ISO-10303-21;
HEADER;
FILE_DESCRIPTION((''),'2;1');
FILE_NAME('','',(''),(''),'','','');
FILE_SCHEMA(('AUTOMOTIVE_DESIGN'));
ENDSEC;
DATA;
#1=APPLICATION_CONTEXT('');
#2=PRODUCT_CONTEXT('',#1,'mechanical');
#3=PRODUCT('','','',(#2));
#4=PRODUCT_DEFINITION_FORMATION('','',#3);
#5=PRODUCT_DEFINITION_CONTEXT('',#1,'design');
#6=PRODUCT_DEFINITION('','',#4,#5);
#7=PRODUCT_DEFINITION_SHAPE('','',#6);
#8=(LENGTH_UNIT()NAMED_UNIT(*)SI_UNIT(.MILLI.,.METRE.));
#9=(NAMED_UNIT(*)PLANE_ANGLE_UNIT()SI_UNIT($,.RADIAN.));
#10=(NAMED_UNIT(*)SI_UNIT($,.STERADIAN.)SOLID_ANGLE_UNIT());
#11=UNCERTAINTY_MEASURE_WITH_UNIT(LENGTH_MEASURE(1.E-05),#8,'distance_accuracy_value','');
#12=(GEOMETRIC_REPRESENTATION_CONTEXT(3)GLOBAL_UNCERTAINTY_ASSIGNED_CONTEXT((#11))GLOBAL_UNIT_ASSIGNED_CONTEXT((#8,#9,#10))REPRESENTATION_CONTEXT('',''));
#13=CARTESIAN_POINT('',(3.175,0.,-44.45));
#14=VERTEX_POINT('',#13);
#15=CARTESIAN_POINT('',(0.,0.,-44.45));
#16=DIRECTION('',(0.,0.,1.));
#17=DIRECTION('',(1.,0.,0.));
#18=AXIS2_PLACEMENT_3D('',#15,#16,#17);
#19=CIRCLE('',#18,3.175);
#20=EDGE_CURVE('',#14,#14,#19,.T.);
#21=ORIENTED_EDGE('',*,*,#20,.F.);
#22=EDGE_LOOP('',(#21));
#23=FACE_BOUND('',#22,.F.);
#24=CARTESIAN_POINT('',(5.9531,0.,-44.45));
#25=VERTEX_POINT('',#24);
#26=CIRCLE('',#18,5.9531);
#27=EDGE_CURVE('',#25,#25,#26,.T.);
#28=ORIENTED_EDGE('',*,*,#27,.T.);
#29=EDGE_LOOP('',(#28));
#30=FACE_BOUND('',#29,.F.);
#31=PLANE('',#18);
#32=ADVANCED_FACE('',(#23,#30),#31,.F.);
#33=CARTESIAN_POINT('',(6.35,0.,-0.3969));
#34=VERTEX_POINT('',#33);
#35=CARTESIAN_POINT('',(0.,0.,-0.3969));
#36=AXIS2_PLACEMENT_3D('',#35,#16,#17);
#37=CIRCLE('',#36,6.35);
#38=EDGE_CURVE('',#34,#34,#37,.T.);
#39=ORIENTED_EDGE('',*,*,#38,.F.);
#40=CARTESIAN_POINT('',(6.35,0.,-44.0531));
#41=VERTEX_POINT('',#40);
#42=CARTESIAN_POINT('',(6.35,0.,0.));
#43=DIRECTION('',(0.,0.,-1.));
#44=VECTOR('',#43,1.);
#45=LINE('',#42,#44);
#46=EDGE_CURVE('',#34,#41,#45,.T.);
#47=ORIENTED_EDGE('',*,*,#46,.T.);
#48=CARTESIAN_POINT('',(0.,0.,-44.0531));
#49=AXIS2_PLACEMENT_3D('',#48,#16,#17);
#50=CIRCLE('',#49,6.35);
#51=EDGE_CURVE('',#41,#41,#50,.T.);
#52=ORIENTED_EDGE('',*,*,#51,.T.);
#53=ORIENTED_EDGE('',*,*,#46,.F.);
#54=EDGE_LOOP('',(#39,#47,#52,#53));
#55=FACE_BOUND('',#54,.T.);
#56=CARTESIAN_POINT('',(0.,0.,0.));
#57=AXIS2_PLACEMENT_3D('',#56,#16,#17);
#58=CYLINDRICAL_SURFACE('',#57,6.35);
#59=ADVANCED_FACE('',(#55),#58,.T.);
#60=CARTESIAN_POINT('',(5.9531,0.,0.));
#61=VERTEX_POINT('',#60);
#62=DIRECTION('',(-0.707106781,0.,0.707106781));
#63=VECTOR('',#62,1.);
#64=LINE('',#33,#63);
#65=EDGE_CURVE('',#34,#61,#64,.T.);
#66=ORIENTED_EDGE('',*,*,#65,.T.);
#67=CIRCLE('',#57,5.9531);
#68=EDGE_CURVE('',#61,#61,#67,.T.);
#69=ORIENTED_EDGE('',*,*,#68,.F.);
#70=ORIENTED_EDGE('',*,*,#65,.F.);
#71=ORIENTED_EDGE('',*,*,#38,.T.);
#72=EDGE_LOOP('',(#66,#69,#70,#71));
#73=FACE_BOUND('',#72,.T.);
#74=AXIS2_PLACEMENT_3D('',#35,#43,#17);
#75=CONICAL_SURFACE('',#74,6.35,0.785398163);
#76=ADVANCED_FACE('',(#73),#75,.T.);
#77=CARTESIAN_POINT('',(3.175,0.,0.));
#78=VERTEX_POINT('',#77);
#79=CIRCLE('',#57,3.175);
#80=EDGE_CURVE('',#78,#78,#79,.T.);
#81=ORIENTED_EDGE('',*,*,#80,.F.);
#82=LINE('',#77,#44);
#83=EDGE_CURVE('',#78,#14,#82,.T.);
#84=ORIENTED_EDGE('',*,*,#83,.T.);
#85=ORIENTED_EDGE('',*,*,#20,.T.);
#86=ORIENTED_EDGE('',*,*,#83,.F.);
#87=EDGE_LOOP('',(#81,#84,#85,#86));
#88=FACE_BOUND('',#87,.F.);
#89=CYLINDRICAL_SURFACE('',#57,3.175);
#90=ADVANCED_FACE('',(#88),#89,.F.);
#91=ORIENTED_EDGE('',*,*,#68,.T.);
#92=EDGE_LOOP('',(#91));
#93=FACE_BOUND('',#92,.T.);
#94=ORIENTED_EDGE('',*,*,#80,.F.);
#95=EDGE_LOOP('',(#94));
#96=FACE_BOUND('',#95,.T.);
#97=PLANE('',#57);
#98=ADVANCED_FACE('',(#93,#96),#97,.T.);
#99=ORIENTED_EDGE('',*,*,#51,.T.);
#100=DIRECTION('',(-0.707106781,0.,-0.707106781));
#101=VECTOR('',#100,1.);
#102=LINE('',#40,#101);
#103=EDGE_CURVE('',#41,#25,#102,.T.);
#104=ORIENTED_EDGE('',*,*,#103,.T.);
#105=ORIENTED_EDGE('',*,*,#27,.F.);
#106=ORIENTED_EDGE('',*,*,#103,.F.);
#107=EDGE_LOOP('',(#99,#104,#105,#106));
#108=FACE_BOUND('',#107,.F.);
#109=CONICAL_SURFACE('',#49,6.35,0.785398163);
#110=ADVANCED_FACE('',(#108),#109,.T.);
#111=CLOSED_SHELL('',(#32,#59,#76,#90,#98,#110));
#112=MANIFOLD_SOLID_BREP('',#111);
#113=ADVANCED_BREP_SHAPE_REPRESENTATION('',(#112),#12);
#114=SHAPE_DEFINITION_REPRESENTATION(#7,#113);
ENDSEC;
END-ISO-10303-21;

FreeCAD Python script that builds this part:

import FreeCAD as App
import Part
import Sketcher

V = App.Vector
Q = App.Units.Quantity


def edges_at(feature, points):
    """Names of the edges that pass closest to the given points."""
    edges = feature.Shape.Edges
    near = lambda p: min(range(len(edges)), key=lambda i: edges[i].distToShape(Part.Vertex(*p))[0])
    return sorted({f"Edge{near(p) + 1}" for p in points})

doc = App.newDocument("Part")
params = doc.addObject("Spreadsheet::Sheet", "Params")
for row, (alias, value) in enumerate([
    ("sketch1_diameter", "0.5 in"),
    ("sketch1_diameter2", "0.25 in"),
    ("pad1_length", "1.75 in"),
    ("chamfer_size", "0.015626 in"),
], start=1):
    params.set(f"A{row}", alias)
    params.set(f"B{row}", "=" + value)
    params.setAlias(f"B{row}", alias)

body = doc.addObject("PartDesign::Body", "Body")

# Sketch on XY plane
sketch1 = body.newObject("Sketcher::SketchObject", "Sketch")
sketch1.AttachmentSupport = (doc.getObject("XY_Plane"), [""])
sketch1.MapMode = "FlatFace"
sketch1.addGeometry([
    Part.Circle(V(0, 0, 0), V(0, 0, 1), 6.35),
    Part.Circle(V(0, 0, 0), V(0, 0, 1), 3.175),
], False)
sketch1.addConstraint([
    Sketcher.Constraint("Coincident", 0, 3, -1, 1),
    Sketcher.Constraint("Coincident", 1, 3, -1, 1),
    Sketcher.Constraint("Diameter", 0, Q("0.5 in")),
    Sketcher.Constraint("Diameter", 1, Q("0.25 in")),
])
sketch1.setExpression("Constraints[2]", "Params.sketch1_diameter")
sketch1.setExpression("Constraints[3]", "Params.sketch1_diameter2")
pad1 = body.newObject("PartDesign::Pad", "Pad")
pad1.Profile = sketch1
pad1.setExpression("Length", "Params.pad1_length")
pad1.Reversed = True
doc.recompute()

chamfer = body.newObject("PartDesign::Chamfer", "Chamfer")
chamfer.Base = (pad1, edges_at(pad1, [(-6.35, 0, 0), (-6.35, 0, -44.45)]))
chamfer.setExpression("Size", "Params.chamfer_size")

doc.recompute()
